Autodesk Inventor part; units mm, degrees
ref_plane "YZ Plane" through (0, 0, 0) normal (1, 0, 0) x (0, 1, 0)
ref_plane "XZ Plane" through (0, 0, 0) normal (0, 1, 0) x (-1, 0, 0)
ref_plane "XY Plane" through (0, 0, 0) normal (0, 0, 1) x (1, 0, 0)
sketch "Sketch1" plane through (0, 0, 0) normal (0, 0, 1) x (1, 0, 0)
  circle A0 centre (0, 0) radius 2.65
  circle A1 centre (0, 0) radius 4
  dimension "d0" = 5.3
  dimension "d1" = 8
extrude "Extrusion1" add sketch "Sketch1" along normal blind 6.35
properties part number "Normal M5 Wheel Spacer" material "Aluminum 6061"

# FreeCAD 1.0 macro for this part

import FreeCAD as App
import Part
import Sketcher
from FreeCAD import Vector
Q = App.Units.Quantity

doc = App.newDocument("Part")
params = doc.addObject("Spreadsheet::Sheet", "Params")
for row, (alias, value) in enumerate([
    ("sketch1_diameter", "8 mm"),
    ("sketch1_diameter2", "5.3 mm"),
    ("pad1_length", "6.35 mm"),
], start=1):
    params.set(f"A{row}", alias)
    params.set(f"B{row}", "=" + value)
    params.setAlias(f"B{row}", alias)

body = doc.addObject("PartDesign::Body", "Body")

sketch1 = body.newObject("Sketcher::SketchObject", "Sketch")
sketch1.AttachmentSupport = (doc.getObject("XY_Plane"), [""])
sketch1.MapMode = "FlatFace"
sketch1.addGeometry([
    Part.Circle(Vector(0, 0, 0), Vector(0, 0, 1), 4),
    Part.Circle(Vector(0, 0, 0), Vector(0, 0, 1), 2.65),
], False)
sketch1.addConstraint([
    Sketcher.Constraint("Coincident", 0, 3, -1, 1),
    Sketcher.Constraint("Coincident", 1, 3, -1, 1),
    Sketcher.Constraint("Diameter", 0, Q("8 mm")),
    Sketcher.Constraint("Diameter", 1, Q("5.3 mm")),
])
sketch1.setExpression("Constraints[2]", "Params.sketch1_diameter")
sketch1.setExpression("Constraints[3]", "Params.sketch1_diameter2")
pad1 = body.newObject("PartDesign::Pad", "Pad")
pad1.Profile = sketch1
pad1.setExpression("Length", "Params.pad1_length")

doc.recompute()
